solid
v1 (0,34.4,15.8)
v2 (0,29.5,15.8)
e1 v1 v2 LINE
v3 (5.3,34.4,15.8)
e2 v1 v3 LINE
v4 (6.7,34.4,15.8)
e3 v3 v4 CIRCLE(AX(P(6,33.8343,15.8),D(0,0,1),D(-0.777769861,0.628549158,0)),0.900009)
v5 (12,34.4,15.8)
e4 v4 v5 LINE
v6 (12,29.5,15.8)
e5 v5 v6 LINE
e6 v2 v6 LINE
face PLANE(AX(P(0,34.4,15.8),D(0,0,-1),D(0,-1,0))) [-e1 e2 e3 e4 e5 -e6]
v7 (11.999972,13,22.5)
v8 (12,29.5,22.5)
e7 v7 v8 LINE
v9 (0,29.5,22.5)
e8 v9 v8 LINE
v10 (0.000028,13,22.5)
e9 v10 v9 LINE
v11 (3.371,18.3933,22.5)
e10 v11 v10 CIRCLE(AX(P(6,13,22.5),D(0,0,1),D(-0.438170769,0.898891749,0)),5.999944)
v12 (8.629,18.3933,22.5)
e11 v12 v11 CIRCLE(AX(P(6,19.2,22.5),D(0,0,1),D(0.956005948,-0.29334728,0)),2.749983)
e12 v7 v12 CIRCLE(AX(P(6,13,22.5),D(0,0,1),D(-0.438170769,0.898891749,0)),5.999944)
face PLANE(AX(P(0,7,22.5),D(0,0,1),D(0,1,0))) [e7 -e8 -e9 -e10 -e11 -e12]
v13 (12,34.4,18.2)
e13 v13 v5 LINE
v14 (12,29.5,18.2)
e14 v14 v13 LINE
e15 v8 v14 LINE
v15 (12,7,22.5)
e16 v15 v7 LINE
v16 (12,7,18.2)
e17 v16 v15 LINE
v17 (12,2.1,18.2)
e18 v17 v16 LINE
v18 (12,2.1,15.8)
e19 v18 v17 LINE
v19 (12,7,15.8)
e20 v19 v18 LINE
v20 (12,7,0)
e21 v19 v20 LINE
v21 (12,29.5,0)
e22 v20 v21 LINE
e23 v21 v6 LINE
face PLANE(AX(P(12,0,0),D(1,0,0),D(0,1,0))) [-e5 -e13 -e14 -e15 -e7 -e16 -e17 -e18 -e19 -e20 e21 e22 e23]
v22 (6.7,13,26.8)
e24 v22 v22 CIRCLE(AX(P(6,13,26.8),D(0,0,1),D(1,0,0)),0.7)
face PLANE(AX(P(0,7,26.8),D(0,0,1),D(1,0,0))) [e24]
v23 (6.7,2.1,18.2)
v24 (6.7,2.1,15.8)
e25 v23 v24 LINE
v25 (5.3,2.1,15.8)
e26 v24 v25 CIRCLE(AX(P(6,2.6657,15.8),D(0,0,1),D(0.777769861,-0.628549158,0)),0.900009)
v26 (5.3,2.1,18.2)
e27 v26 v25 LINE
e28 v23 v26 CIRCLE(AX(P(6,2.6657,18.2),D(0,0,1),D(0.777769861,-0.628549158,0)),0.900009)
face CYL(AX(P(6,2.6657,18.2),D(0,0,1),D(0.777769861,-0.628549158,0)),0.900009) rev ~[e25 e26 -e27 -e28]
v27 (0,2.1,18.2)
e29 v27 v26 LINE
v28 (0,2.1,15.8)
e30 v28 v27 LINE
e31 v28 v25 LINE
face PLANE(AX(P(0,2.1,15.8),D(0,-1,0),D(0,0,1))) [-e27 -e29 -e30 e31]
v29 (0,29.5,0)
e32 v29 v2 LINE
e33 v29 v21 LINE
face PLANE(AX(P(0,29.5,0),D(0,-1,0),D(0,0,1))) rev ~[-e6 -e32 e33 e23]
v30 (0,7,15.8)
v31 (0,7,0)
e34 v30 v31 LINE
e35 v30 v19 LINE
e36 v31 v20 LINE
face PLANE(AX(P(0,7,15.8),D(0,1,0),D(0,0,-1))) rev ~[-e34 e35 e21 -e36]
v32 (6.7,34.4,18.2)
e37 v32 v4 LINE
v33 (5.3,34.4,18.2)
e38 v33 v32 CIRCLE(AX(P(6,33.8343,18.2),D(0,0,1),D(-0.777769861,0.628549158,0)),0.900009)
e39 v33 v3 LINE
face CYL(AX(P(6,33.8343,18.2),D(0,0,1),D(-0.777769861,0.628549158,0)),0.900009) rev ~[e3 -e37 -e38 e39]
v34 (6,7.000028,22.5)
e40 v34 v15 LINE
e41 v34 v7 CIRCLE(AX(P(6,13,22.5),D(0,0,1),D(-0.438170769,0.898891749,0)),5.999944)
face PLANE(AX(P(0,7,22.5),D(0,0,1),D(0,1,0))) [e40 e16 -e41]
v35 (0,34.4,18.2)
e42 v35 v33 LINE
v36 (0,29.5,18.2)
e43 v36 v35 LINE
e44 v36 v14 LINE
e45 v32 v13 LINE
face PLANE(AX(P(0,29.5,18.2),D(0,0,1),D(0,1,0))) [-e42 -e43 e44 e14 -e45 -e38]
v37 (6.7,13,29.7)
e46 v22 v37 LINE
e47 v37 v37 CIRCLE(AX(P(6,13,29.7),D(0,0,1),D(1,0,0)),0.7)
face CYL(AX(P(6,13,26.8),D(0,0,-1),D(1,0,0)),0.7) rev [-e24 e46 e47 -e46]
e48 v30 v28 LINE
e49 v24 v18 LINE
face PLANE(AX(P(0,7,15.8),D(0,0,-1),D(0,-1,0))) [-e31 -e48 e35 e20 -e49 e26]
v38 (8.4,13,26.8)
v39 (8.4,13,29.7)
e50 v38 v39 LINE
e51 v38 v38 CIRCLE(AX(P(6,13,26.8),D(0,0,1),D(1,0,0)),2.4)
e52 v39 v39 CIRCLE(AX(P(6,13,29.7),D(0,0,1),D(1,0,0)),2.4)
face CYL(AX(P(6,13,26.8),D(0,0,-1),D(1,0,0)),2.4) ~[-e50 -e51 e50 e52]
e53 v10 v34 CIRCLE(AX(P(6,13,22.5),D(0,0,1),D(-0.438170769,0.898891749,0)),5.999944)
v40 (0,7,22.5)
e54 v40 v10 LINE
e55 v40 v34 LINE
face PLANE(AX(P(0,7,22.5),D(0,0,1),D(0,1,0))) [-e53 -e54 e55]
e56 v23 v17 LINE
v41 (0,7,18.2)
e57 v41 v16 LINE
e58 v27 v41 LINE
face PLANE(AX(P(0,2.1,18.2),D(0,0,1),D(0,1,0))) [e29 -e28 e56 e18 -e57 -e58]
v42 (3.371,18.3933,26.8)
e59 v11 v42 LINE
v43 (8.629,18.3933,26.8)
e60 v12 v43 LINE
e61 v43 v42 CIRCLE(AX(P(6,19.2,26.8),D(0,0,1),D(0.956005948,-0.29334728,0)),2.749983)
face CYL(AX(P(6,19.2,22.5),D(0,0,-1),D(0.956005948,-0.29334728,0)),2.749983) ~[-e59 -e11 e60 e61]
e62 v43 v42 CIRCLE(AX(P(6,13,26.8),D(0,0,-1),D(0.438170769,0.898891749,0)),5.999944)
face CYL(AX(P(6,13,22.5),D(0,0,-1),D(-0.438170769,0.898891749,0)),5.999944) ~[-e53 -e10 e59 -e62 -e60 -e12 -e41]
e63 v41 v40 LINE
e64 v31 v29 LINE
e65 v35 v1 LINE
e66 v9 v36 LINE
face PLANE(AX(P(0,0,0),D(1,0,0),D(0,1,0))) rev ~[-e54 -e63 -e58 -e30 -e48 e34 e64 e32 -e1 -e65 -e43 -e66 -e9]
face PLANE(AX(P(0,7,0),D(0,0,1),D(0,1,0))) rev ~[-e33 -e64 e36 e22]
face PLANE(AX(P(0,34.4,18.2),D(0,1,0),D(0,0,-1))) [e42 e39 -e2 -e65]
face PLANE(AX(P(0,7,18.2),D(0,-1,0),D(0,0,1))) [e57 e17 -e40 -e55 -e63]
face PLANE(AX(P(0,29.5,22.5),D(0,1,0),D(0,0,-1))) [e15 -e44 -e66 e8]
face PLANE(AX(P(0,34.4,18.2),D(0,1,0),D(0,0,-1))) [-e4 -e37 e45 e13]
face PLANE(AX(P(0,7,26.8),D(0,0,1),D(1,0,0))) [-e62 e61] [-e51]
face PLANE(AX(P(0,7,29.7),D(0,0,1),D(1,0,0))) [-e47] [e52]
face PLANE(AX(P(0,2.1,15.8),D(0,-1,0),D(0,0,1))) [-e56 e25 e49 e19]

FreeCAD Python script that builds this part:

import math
import FreeCAD as App
import Part
import Sketcher


def add_polygon(sketch, points):
    """Adds a closed chain of lines whose ends are joined by coincident constraints."""
    first, n = sketch.GeometryCount, len(points)
    for a, b in zip(points, points[1:] + points[:1]):
        sketch.addGeometry(Part.LineSegment(App.Vector(*a, 0), App.Vector(*b, 0)), False)
    for i in range(n):
        sketch.addConstraint(Sketcher.Constraint("Coincident", first + i, 2, first + (i + 1) % n, 1))

doc = App.newDocument("Part")
body = doc.addObject("PartDesign::Body", "Body")

# Sketch on YZ plane
sketch1 = body.newObject("Sketcher::SketchObject", "Sketch")
sketch1.AttachmentSupport = (doc.getObject("YZ_Plane"), [""])
sketch1.MapMode = "FlatFace"
add_polygon(sketch1, [(7, 15.8), (7, 0), (29.5, 0), (29.5, 15.8), (34.4, 15.8), (34.4, 18.2), (29.5, 18.2), (29.5, 22.5), (7, 22.5), (7, 18.2), (2.1, 18.2), (2.1, 15.8)])  # lines 0-11
sketch1.addConstraint([
    Sketcher.Constraint("Vertical", 0),
    Sketcher.Constraint("Horizontal", 1),
    Sketcher.Constraint("Vertical", 2),
    Sketcher.Constraint("Horizontal", 3),
    Sketcher.Constraint("Vertical", 4),
    Sketcher.Constraint("Horizontal", 5),
    Sketcher.Constraint("Vertical", 6),
    Sketcher.Constraint("Horizontal", 7),
    Sketcher.Constraint("Vertical", 8),
    Sketcher.Constraint("Horizontal", 9),
    Sketcher.Constraint("Vertical", 10),
    Sketcher.Constraint("Horizontal", 11),
    Sketcher.Constraint("PointOnObject", 0, 2, -1),
    Sketcher.Constraint("Horizontal", 5, 2, 8, 2),
    Sketcher.Constraint("Horizontal", 3, 2, 10, 2),
    Sketcher.Constraint("Vertical", 2, 2, 5, 2),
    Sketcher.Constraint("Vertical", 0, 2, 7, 2),
    Sketcher.Constraint("Equal", 5, 9),
    Sketcher.Constraint("DistanceX", 1, 1, 1, 2, 22.5),
    Sketcher.Constraint("DistanceX", 3, 1, 3, 2, 4.9),
    Sketcher.Constraint("DistanceY", 0, 2, 0, 1, 15.8),
    Sketcher.Constraint("DistanceY", 4, 1, 4, 2, 2.4),
    Sketcher.Constraint("DistanceY", 6, 1, 6, 2, 4.3),
    Sketcher.Constraint("DistanceX", -1, 1, 0, 2, 7.0),
])
pad1 = body.newObject("PartDesign::Pad", "Pad")
pad1.Profile = sketch1
pad1.Length = 12

# Sketch on XY plane
sketch2 = body.newObject("Sketcher::SketchObject", "Sketch001")
sketch2.AttachmentSupport = (doc.getObject("XY_Plane"), [""])
sketch2.MapMode = "FlatFace"
sketch2.AttachmentOffset = App.Placement(App.Vector(0, 0, 22.5), App.Rotation())
sketch2.addGeometry([
    Part.ArcOfCircle(Part.Circle(App.Vector(6, 13, 0), App.Vector(0, 0, 1), 6), math.radians(116), math.radians(424)),
    Part.ArcOfCircle(Part.Circle(App.Vector(6, 19.2, 0), App.Vector(0, 0, 1), 2.7), math.radians(-17), math.radians(197)),
], False)
sketch2.addConstraint([
    Sketcher.Constraint("Coincident", 0, 1, 1, 2),
    Sketcher.Constraint("Coincident", 1, 1, 0, 2),
    Sketcher.Constraint("Horizontal", 0, 1, 1, 1),
    Sketcher.Constraint("Radius", 0, 6.0),
    Sketcher.Constraint("Radius", 1, 2.75),
    Sketcher.Constraint("DistanceX", -1, 1, 0, 3, 6.0),
    Sketcher.Constraint("DistanceY", 0, 3, 1, 3, 6.2),
    Sketcher.Constraint("DistanceY", -1, 1, 0, 3, 13.0),
])
pad2 = body.newObject("PartDesign::Pad", "Pad001")
pad2.Profile = sketch2
pad2.Length = 4.3

# Sketch on XY plane
sketch3 = body.newObject("Sketcher::SketchObject", "Sketch002")
sketch3.AttachmentSupport = (doc.getObject("XY_Plane"), [""])
sketch3.MapMode = "FlatFace"
sketch3.AttachmentOffset = App.Placement(App.Vector(0, 0, 26.8), App.Rotation())
sketch3.addGeometry([
    Part.Circle(App.Vector(6, 13, 0), App.Vector(0, 0, 1), 2.4),
    Part.Circle(App.Vector(6, 13, 0), App.Vector(0, 0, 1), 0.7),
], False)
sketch3.addConstraint([
    Sketcher.Constraint("Coincident", 1, 3, 0, 3),
    Sketcher.Constraint("Diameter", 0, 4.8),
    Sketcher.Constraint("Diameter", 1, 1.4),
    Sketcher.Constraint("DistanceX", -1, 1, 0, 3, 6.0),
    Sketcher.Constraint("DistanceY", -1, 1, 0, 3, 13.0),
])
pad3 = body.newObject("PartDesign::Pad", "Pad002")
pad3.Profile = sketch3
pad3.Length = 2.9

# Sketch on XY plane
sketch4 = body.newObject("Sketcher::SketchObject", "Sketch003")
sketch4.AttachmentSupport = (doc.getObject("XY_Plane"), [""])
sketch4.MapMode = "FlatFace"
sketch4.AttachmentOffset = App.Placement(App.Vector(0, 0, 18.2), App.Rotation())
sketch4.addGeometry([
    Part.ArcOfCircle(Part.Circle(App.Vector(6, 2.7, 0), App.Vector(0, 0, 1), 0.9), math.radians(-39), math.radians(219)),
    Part.LineSegment(App.Vector(5.3, 2.1, 0), App.Vector(6.7, 2.1, 0)),
    Part.LineSegment(App.Vector(6.7, 34.4, 0), App.Vector(5.3, 34.4, 0)),
    Part.ArcOfCircle(Part.Circle(App.Vector(6, 33.8, 0), App.Vector(0, 0, 1), 0.9), math.radians(141), math.radians(399)),
], False)
sketch4.addConstraint([
    Sketcher.Constraint("Coincident", 0, 1, 1, 2),
    Sketcher.Constraint("Coincident", 1, 1, 0, 2),
    Sketcher.Constraint("Coincident", 2, 1, 3, 2),
    Sketcher.Constraint("Coincident", 3, 1, 2, 2),
    Sketcher.Constraint("Horizontal", 1),
    Sketcher.Constraint("Horizontal", 2),
    Sketcher.Constraint("Equal", 0, 3),
    Sketcher.Constraint("Vertical", 0, 3, 3, 3),
    Sketcher.Constraint("Vertical", 0, 1, 2, 1),
    Sketcher.Constraint("Radius", 0, 0.9),
    Sketcher.Constraint("DistanceX", -1, 1, 1, 1, 5.3),
    Sketcher.Constraint("DistanceX", 1, 1, 1, 2, 1.4),
    Sketcher.Constraint("DistanceY", -1, 1, 0, 1, 2.1),
    Sketcher.Constraint("DistanceY", -1, 1, 2, 1, 34.4),
])
pocket1 = body.newObject("PartDesign::Pocket", "Pocket")
pocket1.Profile = sketch4
pocket1.Length = 2.4

doc.recompute()
